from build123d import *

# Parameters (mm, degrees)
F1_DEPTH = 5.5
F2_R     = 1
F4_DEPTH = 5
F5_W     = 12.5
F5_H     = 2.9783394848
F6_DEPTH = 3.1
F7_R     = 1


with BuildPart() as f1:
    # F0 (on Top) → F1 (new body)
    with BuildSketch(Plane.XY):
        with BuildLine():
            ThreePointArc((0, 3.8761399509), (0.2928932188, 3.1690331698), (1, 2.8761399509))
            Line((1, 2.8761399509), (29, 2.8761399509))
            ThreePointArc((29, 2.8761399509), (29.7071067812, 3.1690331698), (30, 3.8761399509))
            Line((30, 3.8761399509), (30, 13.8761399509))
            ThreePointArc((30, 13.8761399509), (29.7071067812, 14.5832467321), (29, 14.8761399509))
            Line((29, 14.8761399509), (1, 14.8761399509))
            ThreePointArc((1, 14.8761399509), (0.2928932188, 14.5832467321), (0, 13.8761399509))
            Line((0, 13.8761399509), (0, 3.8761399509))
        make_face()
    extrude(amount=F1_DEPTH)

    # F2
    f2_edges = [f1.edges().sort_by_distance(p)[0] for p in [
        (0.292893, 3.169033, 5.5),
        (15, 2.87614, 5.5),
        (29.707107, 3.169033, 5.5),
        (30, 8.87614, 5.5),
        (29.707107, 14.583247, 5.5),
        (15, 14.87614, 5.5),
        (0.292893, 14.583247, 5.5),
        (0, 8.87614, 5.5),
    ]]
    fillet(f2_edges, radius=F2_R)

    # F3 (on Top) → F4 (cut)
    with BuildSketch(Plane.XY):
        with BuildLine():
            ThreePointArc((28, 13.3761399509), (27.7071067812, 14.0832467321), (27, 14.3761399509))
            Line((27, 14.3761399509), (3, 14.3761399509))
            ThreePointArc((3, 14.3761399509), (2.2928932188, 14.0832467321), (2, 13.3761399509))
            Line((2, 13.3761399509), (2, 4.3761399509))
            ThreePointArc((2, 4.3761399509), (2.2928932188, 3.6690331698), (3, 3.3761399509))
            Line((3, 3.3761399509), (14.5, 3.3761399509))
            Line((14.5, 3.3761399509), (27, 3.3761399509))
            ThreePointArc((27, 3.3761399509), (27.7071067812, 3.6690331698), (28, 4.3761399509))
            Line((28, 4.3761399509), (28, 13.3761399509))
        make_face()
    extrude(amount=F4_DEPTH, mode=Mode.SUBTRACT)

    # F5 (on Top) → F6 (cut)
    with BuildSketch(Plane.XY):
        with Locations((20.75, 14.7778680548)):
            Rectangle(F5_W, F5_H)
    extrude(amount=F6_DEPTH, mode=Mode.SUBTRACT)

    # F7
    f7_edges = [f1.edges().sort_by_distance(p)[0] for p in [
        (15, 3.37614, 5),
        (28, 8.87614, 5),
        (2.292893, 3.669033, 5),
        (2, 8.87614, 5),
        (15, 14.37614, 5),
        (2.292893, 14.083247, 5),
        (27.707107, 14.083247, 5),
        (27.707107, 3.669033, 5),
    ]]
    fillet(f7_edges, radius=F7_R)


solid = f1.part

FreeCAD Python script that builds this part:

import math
import FreeCAD as App
import Part
import Sketcher


def edges_at(feature, points):
    """Names of the edges that pass closest to the given points."""
    edges = feature.Shape.Edges
    near = lambda p: min(range(len(edges)), key=lambda i: edges[i].distToShape(Part.Vertex(*p))[0])
    return sorted({f"Edge{near(p) + 1}" for p in points})


def add_polygon(sketch, points):
    """Adds a closed chain of lines whose ends are joined by coincident constraints."""
    first, n = sketch.GeometryCount, len(points)
    for a, b in zip(points, points[1:] + points[:1]):
        sketch.addGeometry(Part.LineSegment(App.Vector(*a, 0), App.Vector(*b, 0)), False)
    for i in range(n):
        sketch.addConstraint(Sketcher.Constraint("Coincident", first + i, 2, first + (i + 1) % n, 1))

doc = App.newDocument("Part")
params = doc.addObject("Spreadsheet::Sheet", "Params")
for row, (alias, value) in enumerate([
    ("sketch1_radius", "1 mm"),
    ("sketch1_width", "28 mm"),
    ("sketch1_height", "10 mm"),
    ("pad1_length", "5.5 mm"),
    ("fillet_radius", "1 mm"),
    ("sketch2_radius", "1 mm"),
    ("sketch2_width", "24 mm"),
    ("sketch2_height", "9 mm"),
    ("pocket1_length", "5 mm"),
    ("sketch3_width", "12.5 mm"),
    ("pocket2_length", "3.1 mm"),
    ("fillet2_radius", "1 mm"),
], start=1):
    params.set(f"A{row}", alias)
    params.set(f"B{row}", "=" + value)
    params.setAlias(f"B{row}", alias)

body = doc.addObject("PartDesign::Body", "Body")

# Sketch on XY plane
sketch1 = body.newObject("Sketcher::SketchObject", "Sketch")
sketch1.AttachmentSupport = (doc.getObject("XY_Plane"), [""])
sketch1.MapMode = "FlatFace"
sketch1.addGeometry(Part.ArcOfCircle(Part.Circle(App.Vector(1, 3.87614, 0), App.Vector(0, 0, 1), 1), math.radians(180), math.radians(270)), False)
sketch1.addGeometry(Part.LineSegment(App.Vector(1, 2.87614, 0), App.Vector(29, 2.87614, 0)), False)
sketch1.addGeometry(Part.ArcOfCircle(Part.Circle(App.Vector(29, 3.87614, 0), App.Vector(0, 0, 1), 1), math.radians(-90), math.radians(0)), False)
sketch1.addGeometry(Part.LineSegment(App.Vector(30, 3.87614, 0), App.Vector(30, 13.87614, 0)), False)
sketch1.addGeometry(Part.ArcOfCircle(Part.Circle(App.Vector(29, 13.87614, 0), App.Vector(0, 0, 1), 1), math.radians(0), math.radians(90)), False)
sketch1.addGeometry(Part.LineSegment(App.Vector(29, 14.87614, 0), App.Vector(1, 14.87614, 0)), False)
sketch1.addGeometry(Part.ArcOfCircle(Part.Circle(App.Vector(1, 13.87614, 0), App.Vector(0, 0, 1), 1), math.radians(90), math.radians(180)), False)
sketch1.addGeometry(Part.LineSegment(App.Vector(0, 13.87614, 0), App.Vector(0, 3.87614, 0)), False)
sketch1.addConstraint(Sketcher.Constraint("Tangent", 0, 2, 1, 1))
sketch1.addConstraint(Sketcher.Constraint("Tangent", 1, 2, 2, 1))
sketch1.addConstraint(Sketcher.Constraint("Tangent", 2, 2, 3, 1))
sketch1.addConstraint(Sketcher.Constraint("Tangent", 3, 2, 4, 1))
sketch1.addConstraint(Sketcher.Constraint("Tangent", 4, 2, 5, 1))
sketch1.addConstraint(Sketcher.Constraint("Tangent", 5, 2, 6, 1))
sketch1.addConstraint(Sketcher.Constraint("Tangent", 6, 2, 7, 1))
sketch1.addConstraint(Sketcher.Constraint("Tangent", 7, 2, 0, 1))
sketch1.addConstraint(Sketcher.Constraint("Horizontal", 1))
sketch1.addConstraint(Sketcher.Constraint("Vertical", 3))
sketch1.addConstraint(Sketcher.Constraint("Horizontal", 5))
sketch1.addConstraint(Sketcher.Constraint("Vertical", 7))
sketch1.addConstraint(Sketcher.Constraint("Equal", 0, 2))
sketch1.addConstraint(Sketcher.Constraint("Equal", 2, 4))
sketch1.addConstraint(Sketcher.Constraint("Equal", 4, 6))
sketch1.addConstraint(Sketcher.Constraint("PointOnObject", 6, 2, -2))
sketch1.addConstraint(Sketcher.Constraint("Radius", 0, 1.0))
sketch1.addConstraint(Sketcher.Constraint("DistanceX", 1, 1, 1, 2, 28.0))
sketch1.addConstraint(Sketcher.Constraint("DistanceY", 3, 1, 3, 2, 10.0))
sketch1.addConstraint(Sketcher.Constraint("DistanceY", -1, 1, 0, 3, 3.87614))
sketch1.setExpression("Constraints[16]", "Params.sketch1_radius")
sketch1.setExpression("Constraints[17]", "Params.sketch1_width")
sketch1.setExpression("Constraints[18]", "Params.sketch1_height")
pad1 = body.newObject("PartDesign::Pad", "Pad")
pad1.Profile = sketch1
pad1.setExpression("Length", "Params.pad1_length")
doc.recompute()

fillet = body.newObject("PartDesign::Fillet", "Fillet")
fillet.Base = (pad1, edges_at(pad1, [
    (0.293, 3.169, 5.5),
    (15, 2.876, 5.5),
    (29.707, 3.169, 5.5),
    (30, 8.876, 5.5),
    (29.707, 14.583, 5.5),
    (15, 14.876, 5.5),
    (0.293, 14.583, 5.5),
    (0, 8.876, 5.5),
]))
fillet.setExpression("Radius", "Params.fillet_radius")

# Sketch on XY plane
sketch2 = body.newObject("Sketcher::SketchObject", "Sketch001")
sketch2.AttachmentSupport = (doc.getObject("XY_Plane"), [""])
sketch2.MapMode = "FlatFace"
sketch2.addGeometry(Part.ArcOfCircle(Part.Circle(App.Vector(27, 13.37614, 0), App.Vector(0, 0, 1), 1), math.radians(0), math.radians(90)), False)
sketch2.addGeometry(Part.LineSegment(App.Vector(27, 14.37614, 0), App.Vector(3, 14.37614, 0)), False)
sketch2.addGeometry(Part.ArcOfCircle(Part.Circle(App.Vector(3, 13.37614, 0), App.Vector(0, 0, 1), 1), math.radians(90), math.radians(180)), False)
sketch2.addGeometry(Part.LineSegment(App.Vector(2, 13.37614, 0), App.Vector(2, 4.37614, 0)), False)
sketch2.addGeometry(Part.ArcOfCircle(Part.Circle(App.Vector(3, 4.37614, 0), App.Vector(0, 0, 1), 1), math.radians(180), math.radians(270)), False)
sketch2.addGeometry(Part.LineSegment(App.Vector(3, 3.37614, 0), App.Vector(27, 3.37614, 0)), False)
sketch2.addGeometry(Part.ArcOfCircle(Part.Circle(App.Vector(27, 4.37614, 0), App.Vector(0, 0, 1), 1), math.radians(-90), math.radians(0)), False)
sketch2.addGeometry(Part.LineSegment(App.Vector(28, 4.37614, 0), App.Vector(28, 13.37614, 0)), False)
sketch2.addConstraint(Sketcher.Constraint("Tangent", 0, 2, 1, 1))
sketch2.addConstraint(Sketcher.Constraint("Tangent", 1, 2, 2, 1))
sketch2.addConstraint(Sketcher.Constraint("Tangent", 2, 2, 3, 1))
sketch2.addConstraint(Sketcher.Constraint("Tangent", 3, 2, 4, 1))
sketch2.addConstraint(Sketcher.Constraint("Tangent", 4, 2, 5, 1))
sketch2.addConstraint(Sketcher.Constraint("Tangent", 5, 2, 6, 1))
sketch2.addConstraint(Sketcher.Constraint("Tangent", 6, 2, 7, 1))
sketch2.addConstraint(Sketcher.Constraint("Tangent", 7, 2, 0, 1))
sketch2.addConstraint(Sketcher.Constraint("Horizontal", 1))
sketch2.addConstraint(Sketcher.Constraint("Vertical", 3))
sketch2.addConstraint(Sketcher.Constraint("Horizontal", 5))
sketch2.addConstraint(Sketcher.Constraint("Vertical", 7))
sketch2.addConstraint(Sketcher.Constraint("Equal", 0, 2))
sketch2.addConstraint(Sketcher.Constraint("Equal", 2, 4))
sketch2.addConstraint(Sketcher.Constraint("Equal", 4, 6))
sketch2.addConstraint(Sketcher.Constraint("Radius", 0, 1.0))
sketch2.addConstraint(Sketcher.Constraint("DistanceX", 1, 2, 1, 1, 24.0))
sketch2.addConstraint(Sketcher.Constraint("DistanceY", 3, 2, 3, 1, 9.0))
sketch2.addConstraint(Sketcher.Constraint("DistanceX", -1, 1, 0, 3, 27.0))
sketch2.addConstraint(Sketcher.Constraint("DistanceY", -1, 1, 0, 3, 13.37614))
sketch2.setExpression("Constraints[15]", "Params.sketch2_radius")
sketch2.setExpression("Constraints[16]", "Params.sketch2_width")
sketch2.setExpression("Constraints[17]", "Params.sketch2_height")
pocket1 = body.newObject("PartDesign::Pocket", "Pocket")
pocket1.Profile = sketch2
pocket1.setExpression("Length", "Params.pocket1_length")
pocket1.Reversed = True

# Sketch on XY plane
sketch3 = body.newObject("Sketcher::SketchObject", "Sketch002")
sketch3.AttachmentSupport = (doc.getObject("XY_Plane"), [""])
sketch3.MapMode = "FlatFace"
add_polygon(sketch3, [(14.5, 16.267038), (14.5, 13.288698), (27, 13.288698), (27, 16.267038)])  # lines 0-3
sketch3.addConstraint(Sketcher.Constraint("Vertical", 0))
sketch3.addConstraint(Sketcher.Constraint("Horizontal", 1))
sketch3.addConstraint(Sketcher.Constraint("Vertical", 2))
sketch3.addConstraint(Sketcher.Constraint("Horizontal", 3))
sketch3.addConstraint(Sketcher.Constraint("DistanceX", 1, 1, 1, 2, 12.5))
sketch3.addConstraint(Sketcher.Constraint("DistanceX", -1, 1, 1, 2, 27.0))
sketch3.addConstraint(Sketcher.Constraint("DistanceY", 0, 2, 0, 1, 2.978339))
sketch3.addConstraint(Sketcher.Constraint("DistanceY", -1, 1, 0, 2, 13.288698))
sketch3.setExpression("Constraints[8]", "Params.sketch3_width")
pocket2 = body.newObject("PartDesign::Pocket", "Pocket001")
pocket2.Profile = sketch3
pocket2.setExpression("Length", "Params.pocket2_length")
pocket2.Reversed = True
doc.recompute()

fillet2 = body.newObject("PartDesign::Fillet", "Fillet001")
fillet2.Base = (pocket2, edges_at(pocket2, [
    (15, 3.376, 5),
    (28, 8.876, 5),
    (2.293, 3.669, 5),
    (2, 8.876, 5),
    (15, 14.376, 5),
    (2.293, 14.083, 5),
    (27.707, 14.083, 5),
    (27.707, 3.669, 5),
]))
fillet2.setExpression("Radius", "Params.fillet2_radius")

doc.recompute()
